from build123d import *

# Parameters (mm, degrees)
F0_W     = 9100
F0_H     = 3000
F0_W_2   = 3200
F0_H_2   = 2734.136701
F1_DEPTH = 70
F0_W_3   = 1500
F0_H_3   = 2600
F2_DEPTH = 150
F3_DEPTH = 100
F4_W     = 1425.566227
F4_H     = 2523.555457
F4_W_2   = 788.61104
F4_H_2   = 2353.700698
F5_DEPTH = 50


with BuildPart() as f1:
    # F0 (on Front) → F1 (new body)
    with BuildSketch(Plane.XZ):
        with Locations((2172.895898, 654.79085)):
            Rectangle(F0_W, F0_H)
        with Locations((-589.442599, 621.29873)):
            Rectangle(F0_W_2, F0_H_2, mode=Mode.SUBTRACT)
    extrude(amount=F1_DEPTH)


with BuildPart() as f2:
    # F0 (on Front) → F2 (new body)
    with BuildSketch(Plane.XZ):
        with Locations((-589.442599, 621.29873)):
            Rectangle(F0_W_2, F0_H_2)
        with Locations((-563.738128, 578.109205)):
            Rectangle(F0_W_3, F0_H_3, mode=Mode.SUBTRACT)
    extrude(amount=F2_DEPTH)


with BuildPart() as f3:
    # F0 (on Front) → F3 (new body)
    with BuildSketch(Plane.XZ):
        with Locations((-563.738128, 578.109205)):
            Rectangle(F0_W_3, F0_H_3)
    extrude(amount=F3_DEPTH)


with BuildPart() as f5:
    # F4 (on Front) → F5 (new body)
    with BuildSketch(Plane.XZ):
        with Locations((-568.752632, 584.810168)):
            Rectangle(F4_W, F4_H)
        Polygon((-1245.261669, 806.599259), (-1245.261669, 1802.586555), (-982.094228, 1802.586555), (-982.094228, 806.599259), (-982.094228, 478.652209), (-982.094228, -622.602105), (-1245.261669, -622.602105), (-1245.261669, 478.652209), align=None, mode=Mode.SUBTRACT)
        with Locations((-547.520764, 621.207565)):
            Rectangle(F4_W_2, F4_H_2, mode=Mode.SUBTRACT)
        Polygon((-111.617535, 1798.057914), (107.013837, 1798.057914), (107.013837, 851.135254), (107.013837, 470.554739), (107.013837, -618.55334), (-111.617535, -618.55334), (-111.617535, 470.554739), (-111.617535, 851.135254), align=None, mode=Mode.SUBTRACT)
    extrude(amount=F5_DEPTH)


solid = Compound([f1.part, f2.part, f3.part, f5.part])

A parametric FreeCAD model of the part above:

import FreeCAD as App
import Part
import Sketcher

V = App.Vector
Q = App.Units.Quantity

doc = App.newDocument("Part")
body = doc.addObject("PartDesign::Body", "Body")

# Sketch on XZ plane
sketch1 = body.newObject("Sketcher::SketchObject", "Sketch")
sketch1.AttachmentSupport = (doc.getObject("XZ_Plane"), [""])
sketch1.MapMode = "FlatFace"
sketch1.addGeometry(Part.LineSegment(V(-2377, 2155, 0), V(-2377, -845, 0)), False)
sketch1.addGeometry(Part.LineSegment(V(-2377, -845, 0), V(6723, -845, 0)), False)
sketch1.addGeometry(Part.LineSegment(V(6723, -845, 0), V(6723, 2155, 0)), False)
sketch1.addGeometry(Part.LineSegment(V(6723, 2155, 0), V(-2377, 2155, 0)), False)
sketch1.addGeometry(Part.LineSegment(V(1011, -746, 0), V(-2189, -746, 0)), False)
sketch1.addGeometry(Part.LineSegment(V(-2189, -746, 0), V(-2189, 1988, 0)), False)
sketch1.addGeometry(Part.LineSegment(V(-2189, 1988, 0), V(1011, 1988, 0)), False)
sketch1.addGeometry(Part.LineSegment(V(1011, 1988, 0), V(1011, -746, 0)), False)
sketch1.addConstraint(Sketcher.Constraint("Coincident", 0, 2, 1, 1))
sketch1.addConstraint(Sketcher.Constraint("Coincident", 1, 2, 2, 1))
sketch1.addConstraint(Sketcher.Constraint("Coincident", 2, 2, 3, 1))
sketch1.addConstraint(Sketcher.Constraint("Coincident", 3, 2, 0, 1))
sketch1.addConstraint(Sketcher.Constraint("Coincident", 4, 2, 5, 1))
sketch1.addConstraint(Sketcher.Constraint("Coincident", 5, 2, 6, 1))
sketch1.addConstraint(Sketcher.Constraint("Coincident", 6, 2, 7, 1))
sketch1.addConstraint(Sketcher.Constraint("Coincident", 7, 2, 4, 1))
sketch1.addConstraint(Sketcher.Constraint("Vertical", 0))
sketch1.addConstraint(Sketcher.Constraint("Horizontal", 1))
sketch1.addConstraint(Sketcher.Constraint("Vertical", 2))
sketch1.addConstraint(Sketcher.Constraint("Horizontal", 3))
sketch1.addConstraint(Sketcher.Constraint("Horizontal", 4))
sketch1.addConstraint(Sketcher.Constraint("Vertical", 5))
sketch1.addConstraint(Sketcher.Constraint("Horizontal", 6))
sketch1.addConstraint(Sketcher.Constraint("Vertical", 7))
sketch1.addConstraint(Sketcher.Constraint("DistanceX", 1, 1, 1, 2, Q("9100 mm")))
sketch1.addConstraint(Sketcher.Constraint("DistanceX", 4, 2, 4, 1, Q("3200 mm")))
sketch1.addConstraint(Sketcher.Constraint("DistanceY", 0, 2, 0, 1, Q("3000 mm")))
sketch1.addConstraint(Sketcher.Constraint("DistanceY", 5, 1, 5, 2, Q("2734.136701 mm")))
sketch1.addConstraint(Sketcher.Constraint("DistanceX", 0, 2, -1, 1, Q("2377.104102 mm")))
sketch1.addConstraint(Sketcher.Constraint("DistanceX", 4, 2, -1, 1, Q("2189.442599 mm")))
sketch1.addConstraint(Sketcher.Constraint("DistanceY", 0, 2, -1, 1, Q("845.20915 mm")))
sketch1.addConstraint(Sketcher.Constraint("DistanceY", 4, 2, -1, 1, Q("745.76962 mm")))
pad1 = body.newObject("PartDesign::Pad", "Pad")
pad1.Profile = sketch1
pad1.Length = 70
body2 = doc.addObject("PartDesign::Body", "Body001")

# Sketch on XZ plane
sketch2 = body2.newObject("Sketcher::SketchObject", "Sketch001")
sketch2.AttachmentSupport = (doc.getObject("XZ_Plane001"), [""])
sketch2.MapMode = "FlatFace"
sketch2.addGeometry(Part.LineSegment(V(-2189, 1988, 0), V(-2189, -746, 0)), False)
sketch2.addGeometry(Part.LineSegment(V(-2189, -746, 0), V(1011, -746, 0)), False)
sketch2.addGeometry(Part.LineSegment(V(1011, -746, 0), V(1011, 1988, 0)), False)
sketch2.addGeometry(Part.LineSegment(V(1011, 1988, 0), V(-2189, 1988, 0)), False)
sketch2.addGeometry(Part.LineSegment(V(186, -722, 0), V(-1314, -722, 0)), False)
sketch2.addGeometry(Part.LineSegment(V(-1314, -722, 0), V(-1314, 1878, 0)), False)
sketch2.addGeometry(Part.LineSegment(V(-1314, 1878, 0), V(186, 1878, 0)), False)
sketch2.addGeometry(Part.LineSegment(V(186, 1878, 0), V(186, -722, 0)), False)
sketch2.addConstraint(Sketcher.Constraint("Coincident", 0, 2, 1, 1))
sketch2.addConstraint(Sketcher.Constraint("Coincident", 1, 2, 2, 1))
sketch2.addConstraint(Sketcher.Constraint("Coincident", 2, 2, 3, 1))
sketch2.addConstraint(Sketcher.Constraint("Coincident", 3, 2, 0, 1))
sketch2.addConstraint(Sketcher.Constraint("Coincident", 4, 2, 5, 1))
sketch2.addConstraint(Sketcher.Constraint("Coincident", 5, 2, 6, 1))
sketch2.addConstraint(Sketcher.Constraint("Coincident", 6, 2, 7, 1))
sketch2.addConstraint(Sketcher.Constraint("Coincident", 7, 2, 4, 1))
sketch2.addConstraint(Sketcher.Constraint("Vertical", 0))
sketch2.addConstraint(Sketcher.Constraint("Horizontal", 1))
sketch2.addConstraint(Sketcher.Constraint("Vertical", 2))
sketch2.addConstraint(Sketcher.Constraint("Horizontal", 3))
sketch2.addConstraint(Sketcher.Constraint("Horizontal", 4))
sketch2.addConstraint(Sketcher.Constraint("Vertical", 5))
sketch2.addConstraint(Sketcher.Constraint("Horizontal", 6))
sketch2.addConstraint(Sketcher.Constraint("Vertical", 7))
sketch2.addConstraint(Sketcher.Constraint("DistanceX", 1, 1, 1, 2, Q("3200 mm")))
sketch2.addConstraint(Sketcher.Constraint("DistanceX", 4, 2, 4, 1, Q("1500 mm")))
sketch2.addConstraint(Sketcher.Constraint("DistanceY", 5, 1, 5, 2, Q("2600 mm")))
sketch2.addConstraint(Sketcher.Constraint("DistanceY", 0, 2, 0, 1, Q("2734.136701 mm")))
sketch2.addConstraint(Sketcher.Constraint("DistanceX", 0, 2, -1, 1, Q("2189.442599 mm")))
sketch2.addConstraint(Sketcher.Constraint("DistanceY", 0, 2, -1, 1, Q("745.76962 mm")))
sketch2.addConstraint(Sketcher.Constraint("DistanceX", 4, 2, -1, 1, Q("1313.738128 mm")))
sketch2.addConstraint(Sketcher.Constraint("DistanceY", 4, 2, -1, 1, Q("721.890795 mm")))
pad2 = body2.newObject("PartDesign::Pad", "Pad001")
pad2.Profile = sketch2
pad2.Length = 150
body3 = doc.addObject("PartDesign::Body", "Body002")

# Sketch on XZ plane
sketch3 = body3.newObject("Sketcher::SketchObject", "Sketch002")
sketch3.AttachmentSupport = (doc.getObject("XZ_Plane002"), [""])
sketch3.MapMode = "FlatFace"
sketch3.addGeometry(Part.LineSegment(V(-1314, 1878, 0), V(-1314, -722, 0)), False)
sketch3.addGeometry(Part.LineSegment(V(-1314, -722, 0), V(186, -722, 0)), False)
sketch3.addGeometry(Part.LineSegment(V(186, -722, 0), V(186, 1878, 0)), False)
sketch3.addGeometry(Part.LineSegment(V(186, 1878, 0), V(-1314, 1878, 0)), False)
sketch3.addConstraint(Sketcher.Constraint("Coincident", 0, 2, 1, 1))
sketch3.addConstraint(Sketcher.Constraint("Coincident", 1, 2, 2, 1))
sketch3.addConstraint(Sketcher.Constraint("Coincident", 2, 2, 3, 1))
sketch3.addConstraint(Sketcher.Constraint("Coincident", 3, 2, 0, 1))
sketch3.addConstraint(Sketcher.Constraint("Vertical", 0))
sketch3.addConstraint(Sketcher.Constraint("Horizontal", 1))
sketch3.addConstraint(Sketcher.Constraint("Vertical", 2))
sketch3.addConstraint(Sketcher.Constraint("Horizontal", 3))
sketch3.addConstraint(Sketcher.Constraint("DistanceX", 1, 1, 1, 2, Q("1500 mm")))
sketch3.addConstraint(Sketcher.Constraint("DistanceY", 0, 2, 0, 1, Q("2600 mm")))
sketch3.addConstraint(Sketcher.Constraint("DistanceX", 0, 2, -1, 1, Q("1313.738128 mm")))
sketch3.addConstraint(Sketcher.Constraint("DistanceY", 0, 2, -1, 1, Q("721.890795 mm")))
pad3 = body3.newObject("PartDesign::Pad", "Pad002")
pad3.Profile = sketch3
pad3.Length = 100
body4 = doc.addObject("PartDesign::Body", "Body003")

# Sketch on XZ plane
sketch4 = body4.newObject("Sketcher::SketchObject", "Sketch003")
sketch4.AttachmentSupport = (doc.getObject("XZ_Plane003"), [""])
sketch4.MapMode = "FlatFace"
sketch4.addGeometry(Part.LineSegment(V(-1282, 1847, 0), V(-1282, -677, 0)), False)
sketch4.addGeometry(Part.LineSegment(V(-1282, -677, 0), V(144, -677, 0)), False)
sketch4.addGeometry(Part.LineSegment(V(144, -677, 0), V(144, 1847, 0)), False)
sketch4.addGeometry(Part.LineSegment(V(144, 1847, 0), V(-1282, 1847, 0)), False)
sketch4.addGeometry(Part.LineSegment(V(-112, -619, 0), V(-112, 1798, 0)), False)
sketch4.addGeometry(Part.LineSegment(V(-112, 1798, 0), V(107, 1798, 0)), False)
sketch4.addGeometry(Part.LineSegment(V(107, 1798, 0), V(107, -619, 0)), False)
sketch4.addGeometry(Part.LineSegment(V(107, -619, 0), V(-112, -619, 0)), False)
sketch4.addGeometry(Part.LineSegment(V(-1245, -623, 0), V(-1245, 1803, 0)), False)
sketch4.addGeometry(Part.LineSegment(V(-1245, 1803, 0), V(-982, 1803, 0)), False)
sketch4.addGeometry(Part.LineSegment(V(-982, 1803, 0), V(-982, -623, 0)), False)
sketch4.addGeometry(Part.LineSegment(V(-982, -623, 0), V(-1245, -623, 0)), False)
sketch4.addGeometry(Part.LineSegment(V(-153, -556, 0), V(-942, -556, 0)), False)
sketch4.addGeometry(Part.LineSegment(V(-942, -556, 0), V(-942, 1798, 0)), False)
sketch4.addGeometry(Part.LineSegment(V(-942, 1798, 0), V(-153, 1798, 0)), False)
sketch4.addGeometry(Part.LineSegment(V(-153, 1798, 0), V(-153, -556, 0)), False)
sketch4.addConstraint(Sketcher.Constraint("Coincident", 0, 2, 1, 1))
sketch4.addConstraint(Sketcher.Constraint("Coincident", 1, 2, 2, 1))
sketch4.addConstraint(Sketcher.Constraint("Coincident", 2, 2, 3, 1))
sketch4.addConstraint(Sketcher.Constraint("Coincident", 3, 2, 0, 1))
sketch4.addConstraint(Sketcher.Constraint("Coincident", 4, 2, 5, 1))
sketch4.addConstraint(Sketcher.Constraint("Coincident", 5, 2, 6, 1))
sketch4.addConstraint(Sketcher.Constraint("Coincident", 6, 2, 7, 1))
sketch4.addConstraint(Sketcher.Constraint("Coincident", 7, 2, 4, 1))
sketch4.addConstraint(Sketcher.Constraint("Coincident", 8, 2, 9, 1))
sketch4.addConstraint(Sketcher.Constraint("Coincident", 9, 2, 10, 1))
sketch4.addConstraint(Sketcher.Constraint("Coincident", 10, 2, 11, 1))
sketch4.addConstraint(Sketcher.Constraint("Coincident", 11, 2, 8, 1))
sketch4.addConstraint(Sketcher.Constraint("Coincident", 12, 2, 13, 1))
sketch4.addConstraint(Sketcher.Constraint("Coincident", 13, 2, 14, 1))
sketch4.addConstraint(Sketcher.Constraint("Coincident", 14, 2, 15, 1))
sketch4.addConstraint(Sketcher.Constraint("Coincident", 15, 2, 12, 1))
sketch4.addConstraint(Sketcher.Constraint("Vertical", 0))
sketch4.addConstraint(Sketcher.Constraint("Horizontal", 1))
sketch4.addConstraint(Sketcher.Constraint("Vertical", 2))
sketch4.addConstraint(Sketcher.Constraint("Horizontal", 3))
sketch4.addConstraint(Sketcher.Constraint("Vertical", 4))
sketch4.addConstraint(Sketcher.Constraint("Horizontal", 5))
sketch4.addConstraint(Sketcher.Constraint("Vertical", 6))
sketch4.addConstraint(Sketcher.Constraint("Horizontal", 7))
sketch4.addConstraint(Sketcher.Constraint("Vertical", 8))
sketch4.addConstraint(Sketcher.Constraint("Horizontal", 9))
sketch4.addConstraint(Sketcher.Constraint("Vertical", 10))
sketch4.addConstraint(Sketcher.Constraint("Horizontal", 11))
sketch4.addConstraint(Sketcher.Constraint("Horizontal", 12))
sketch4.addConstraint(Sketcher.Constraint("Vertical", 13))
sketch4.addConstraint(Sketcher.Constraint("Horizontal", 14))
sketch4.addConstraint(Sketcher.Constraint("Vertical", 15))
sketch4.addConstraint(Sketcher.Constraint("Horizontal", 5, 2, 13, 2))
sketch4.addConstraint(Sketcher.Constraint("DistanceY", 13, 1, 13, 2, Q("2353.700698 mm")))
sketch4.addConstraint(Sketcher.Constraint("DistanceX", 5, 1, 5, 2, Q("218.631372 mm")))
sketch4.addConstraint(Sketcher.Constraint("DistanceX", 9, 1, 9, 2, Q("263.167441 mm")))
sketch4.addConstraint(Sketcher.Constraint("DistanceX", 12, 2, 12, 1, Q("788.61104 mm")))
sketch4.addConstraint(Sketcher.Constraint("DistanceY", 8, 1, 8, 2, Q("2425.18866 mm")))
sketch4.addConstraint(Sketcher.Constraint("DistanceX", 1, 1, 1, 2, Q("1425.566227 mm")))
sketch4.addConstraint(Sketcher.Constraint("DistanceY", 0, 2, 0, 1, Q("2523.555457 mm")))
sketch4.addConstraint(Sketcher.Constraint("DistanceY", 4, 1, 4, 2, Q("2416.611254 mm")))
sketch4.addConstraint(Sketcher.Constraint("DistanceY", 0, 2, -1, 1, Q("676.96756 mm")))
sketch4.addConstraint(Sketcher.Constraint("DistanceX", -1, 1, 1, 2, Q("144.030482 mm")))
sketch4.addConstraint(Sketcher.Constraint("DistanceY", 6, 2, -1, 1, Q("618.55334 mm")))
sketch4.addConstraint(Sketcher.Constraint("DistanceX", 8, 2, -1, 1, Q("1245.261669 mm")))
sketch4.addConstraint(Sketcher.Constraint("DistanceX", 3, 2, 4, 2, Q("1169.91821 mm")))
sketch4.addConstraint(Sketcher.Constraint("DistanceY", 8, 2, 3, 2, Q("44.001341 mm")))
sketch4.addConstraint(Sketcher.Constraint("DistanceX", 0, 2, 12, 2, Q("339.709462 mm")))
pad4 = body4.newObject("PartDesign::Pad", "Pad003")
pad4.Profile = sketch4
pad4.Length = 50

doc.recompute()
